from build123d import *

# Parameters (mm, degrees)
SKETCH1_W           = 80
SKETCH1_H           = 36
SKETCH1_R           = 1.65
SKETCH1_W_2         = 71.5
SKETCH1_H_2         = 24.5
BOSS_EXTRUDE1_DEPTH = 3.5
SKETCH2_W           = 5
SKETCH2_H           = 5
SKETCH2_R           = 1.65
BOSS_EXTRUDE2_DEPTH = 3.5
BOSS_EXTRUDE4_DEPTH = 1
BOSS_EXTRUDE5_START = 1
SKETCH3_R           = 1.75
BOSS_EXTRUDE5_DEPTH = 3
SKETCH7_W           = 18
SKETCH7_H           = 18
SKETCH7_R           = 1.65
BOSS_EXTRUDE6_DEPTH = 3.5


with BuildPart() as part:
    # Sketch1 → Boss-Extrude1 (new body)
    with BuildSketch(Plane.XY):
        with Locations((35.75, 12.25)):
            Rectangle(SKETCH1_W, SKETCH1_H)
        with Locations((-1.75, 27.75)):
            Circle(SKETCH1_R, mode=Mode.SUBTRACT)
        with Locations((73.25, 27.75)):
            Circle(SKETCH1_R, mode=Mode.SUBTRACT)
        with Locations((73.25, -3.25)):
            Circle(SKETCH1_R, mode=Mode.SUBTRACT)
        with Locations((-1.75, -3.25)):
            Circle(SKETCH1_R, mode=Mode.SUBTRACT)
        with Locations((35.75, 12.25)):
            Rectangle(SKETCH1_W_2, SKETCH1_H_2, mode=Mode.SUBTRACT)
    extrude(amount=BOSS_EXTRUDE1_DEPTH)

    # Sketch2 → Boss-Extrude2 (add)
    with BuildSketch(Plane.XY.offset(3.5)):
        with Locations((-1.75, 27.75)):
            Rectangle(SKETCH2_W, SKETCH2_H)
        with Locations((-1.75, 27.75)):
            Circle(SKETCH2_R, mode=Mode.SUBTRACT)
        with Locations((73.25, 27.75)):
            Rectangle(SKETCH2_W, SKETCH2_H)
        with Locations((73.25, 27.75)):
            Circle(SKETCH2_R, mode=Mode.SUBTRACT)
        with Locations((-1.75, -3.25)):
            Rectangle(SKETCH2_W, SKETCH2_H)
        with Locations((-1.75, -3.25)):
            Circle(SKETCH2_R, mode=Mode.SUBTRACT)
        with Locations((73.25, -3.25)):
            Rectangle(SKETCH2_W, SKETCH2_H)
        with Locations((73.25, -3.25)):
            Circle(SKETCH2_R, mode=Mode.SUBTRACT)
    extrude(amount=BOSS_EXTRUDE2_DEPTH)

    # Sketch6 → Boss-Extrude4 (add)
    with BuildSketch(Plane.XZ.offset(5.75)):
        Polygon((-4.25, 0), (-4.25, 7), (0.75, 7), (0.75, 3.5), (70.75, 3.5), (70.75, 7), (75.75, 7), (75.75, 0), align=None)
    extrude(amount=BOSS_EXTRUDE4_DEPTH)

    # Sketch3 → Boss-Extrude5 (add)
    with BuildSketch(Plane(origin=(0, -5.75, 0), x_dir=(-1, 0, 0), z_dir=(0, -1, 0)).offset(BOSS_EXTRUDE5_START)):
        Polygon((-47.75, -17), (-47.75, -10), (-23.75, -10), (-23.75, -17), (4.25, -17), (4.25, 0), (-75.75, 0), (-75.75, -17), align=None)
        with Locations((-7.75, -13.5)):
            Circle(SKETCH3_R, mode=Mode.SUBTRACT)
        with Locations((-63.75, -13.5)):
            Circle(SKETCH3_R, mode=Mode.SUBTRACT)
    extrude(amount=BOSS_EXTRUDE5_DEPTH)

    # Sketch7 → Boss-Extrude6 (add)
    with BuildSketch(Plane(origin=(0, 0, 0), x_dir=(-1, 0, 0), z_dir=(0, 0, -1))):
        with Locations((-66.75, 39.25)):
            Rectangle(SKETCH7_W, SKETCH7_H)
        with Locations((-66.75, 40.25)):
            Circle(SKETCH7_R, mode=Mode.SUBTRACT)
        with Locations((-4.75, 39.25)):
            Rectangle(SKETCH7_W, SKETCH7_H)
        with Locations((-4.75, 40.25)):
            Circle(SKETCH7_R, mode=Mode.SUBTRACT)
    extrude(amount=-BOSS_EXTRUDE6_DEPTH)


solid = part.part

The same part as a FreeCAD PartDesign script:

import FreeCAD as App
import Part
import Sketcher
Q = App.Units.Quantity

doc = App.newDocument("Part")
body = doc.addObject("PartDesign::Body", "Body")

# Sketch on XY plane
sketch1 = doc.addObject("Sketcher::SketchObject", "Sketch")
body.addObject(sketch1)
sketch1.AttachmentSupport = (doc.XY_Plane, [""])
sketch1.MapMode = "FlatFace"
sketch1.addGeometry(Part.LineSegment(App.Vector(-4.2, 30.2, 0), App.Vector(-4.2, -5.8, 0)), False)
sketch1.addGeometry(Part.LineSegment(App.Vector(-4.2, -5.8, 0), App.Vector(75.8, -5.8, 0)), False)
sketch1.addGeometry(Part.LineSegment(App.Vector(75.8, -5.8, 0), App.Vector(75.8, 30.2, 0)), False)
sketch1.addGeometry(Part.LineSegment(App.Vector(75.8, 30.2, 0), App.Vector(-4.2, 30.2, 0)), False)
sketch1.addGeometry(Part.Circle(App.Vector(-1.8, -3.2, 0), App.Vector(0, 0, 1), 1.6), False)
sketch1.addGeometry(Part.Circle(App.Vector(73.2, -3.2, 0), App.Vector(0, 0, 1), 1.6), False)
sketch1.addGeometry(Part.Circle(App.Vector(-1.8, 27.8, 0), App.Vector(0, 0, 1), 1.6), False)
sketch1.addGeometry(Part.LineSegment(App.Vector(71.5, 0, 0), App.Vector(0, 0, 0)), False)
sketch1.addGeometry(Part.LineSegment(App.Vector(0, 0, 0), App.Vector(0, 24.5, 0)), False)
sketch1.addGeometry(Part.LineSegment(App.Vector(0, 24.5, 0), App.Vector(71.5, 24.5, 0)), False)
sketch1.addGeometry(Part.LineSegment(App.Vector(71.5, 24.5, 0), App.Vector(71.5, 0, 0)), False)
sketch1.addGeometry(Part.Circle(App.Vector(73.2, 27.8, 0), App.Vector(0, 0, 1), 1.6), False)
sketch1.addConstraint(Sketcher.Constraint("Coincident", 0, 2, 1, 1))
sketch1.addConstraint(Sketcher.Constraint("Coincident", 1, 2, 2, 1))
sketch1.addConstraint(Sketcher.Constraint("Coincident", 2, 2, 3, 1))
sketch1.addConstraint(Sketcher.Constraint("Coincident", 3, 2, 0, 1))
sketch1.addConstraint(Sketcher.Constraint("Coincident", 7, 2, 8, 1))
sketch1.addConstraint(Sketcher.Constraint("Coincident", 8, 2, 9, 1))
sketch1.addConstraint(Sketcher.Constraint("Coincident", 9, 2, 10, 1))
sketch1.addConstraint(Sketcher.Constraint("Coincident", 10, 2, 7, 1))
sketch1.addConstraint(Sketcher.Constraint("Vertical", 0))
sketch1.addConstraint(Sketcher.Constraint("Horizontal", 1))
sketch1.addConstraint(Sketcher.Constraint("Vertical", 2))
sketch1.addConstraint(Sketcher.Constraint("Horizontal", 3))
sketch1.addConstraint(Sketcher.Constraint("Horizontal", 7))
sketch1.addConstraint(Sketcher.Constraint("Vertical", 8))
sketch1.addConstraint(Sketcher.Constraint("Horizontal", 9))
sketch1.addConstraint(Sketcher.Constraint("Vertical", 10))
sketch1.addConstraint(Sketcher.Constraint("Coincident", 7, 2, -1, 1))
sketch1.addConstraint(Sketcher.Constraint("Equal", 4, 5))
sketch1.addConstraint(Sketcher.Constraint("Equal", 5, 6))
sketch1.addConstraint(Sketcher.Constraint("Equal", 6, 11))
sketch1.addConstraint(Sketcher.Constraint("Horizontal", 4, 3, 5, 3))
sketch1.addConstraint(Sketcher.Constraint("Horizontal", 6, 3, 11, 3))
sketch1.addConstraint(Sketcher.Constraint("Vertical", 4, 3, 6, 3))
sketch1.addConstraint(Sketcher.Constraint("Vertical", 5, 3, 11, 3))
sketch1.addConstraint(Sketcher.Constraint("Diameter", 4, Q("3.3 mm")))
sketch1.addConstraint(Sketcher.Constraint("DistanceX", 1, 1, 1, 2, Q("80 mm")))
sketch1.addConstraint(Sketcher.Constraint("DistanceY", 0, 2, 0, 1, Q("36 mm")))
sketch1.addConstraint(Sketcher.Constraint("DistanceX", 7, 2, 7, 1, Q("71.5 mm")))
sketch1.addConstraint(Sketcher.Constraint("DistanceY", 8, 1, 8, 2, Q("24.5 mm")))
sketch1.addConstraint(Sketcher.Constraint("DistanceX", 4, 3, 5, 3, Q("75 mm")))
sketch1.addConstraint(Sketcher.Constraint("DistanceY", 4, 3, 6, 3, Q("31 mm")))
sketch1.addConstraint(Sketcher.Constraint("DistanceX", 0, 2, 4, 3, Q("2.5 mm")))
sketch1.addConstraint(Sketcher.Constraint("DistanceY", 0, 2, 4, 3, Q("2.5 mm")))
sketch1.addConstraint(Sketcher.Constraint("DistanceX", 4, 3, -1, 1, Q("1.75 mm")))
sketch1.addConstraint(Sketcher.Constraint("DistanceY", 4, 3, -1, 1, Q("3.25 mm")))
pad1 = doc.addObject("PartDesign::Pad", "Pad")
body.addObject(pad1)
pad1.Profile = sketch1
pad1.Length = 3.5

# Sketch on XY plane
sketch2 = doc.addObject("Sketcher::SketchObject", "Sketch001")
body.addObject(sketch2)
sketch2.AttachmentSupport = (doc.XY_Plane, [""])
sketch2.MapMode = "FlatFace"
sketch2.AttachmentOffset = App.Placement(App.Vector(0, 0, 3.5), App.Rotation())
sketch2.addGeometry(Part.LineSegment(App.Vector(-4.2, 30.2, 0), App.Vector(-4.2, 25.2, 0)), False)
sketch2.addGeometry(Part.LineSegment(App.Vector(-4.2, 25.2, 0), App.Vector(0.8, 25.2, 0)), False)
sketch2.addGeometry(Part.LineSegment(App.Vector(0.8, 25.2, 0), App.Vector(0.8, 30.2, 0)), False)
sketch2.addGeometry(Part.LineSegment(App.Vector(0.8, 30.2, 0), App.Vector(-4.2, 30.2, 0)), False)
sketch2.addGeometry(Part.Circle(App.Vector(-1.8, 27.8, 0), App.Vector(0, 0, 1), 1.6), False)
sketch2.addGeometry(Part.LineSegment(App.Vector(70.8, 30.2, 0), App.Vector(70.8, 25.2, 0)), False)
sketch2.addGeometry(Part.LineSegment(App.Vector(70.8, 25.2, 0), App.Vector(75.8, 25.2, 0)), False)
sketch2.addGeometry(Part.LineSegment(App.Vector(75.8, 25.2, 0), App.Vector(75.8, 30.2, 0)), False)
sketch2.addGeometry(Part.LineSegment(App.Vector(75.8, 30.2, 0), App.Vector(70.8, 30.2, 0)), False)
sketch2.addGeometry(Part.Circle(App.Vector(73.2, 27.8, 0), App.Vector(0, 0, 1), 1.6), False)
sketch2.addGeometry(Part.LineSegment(App.Vector(-4.2, -0.8, 0), App.Vector(-4.2, -5.8, 0)), False)
sketch2.addGeometry(Part.LineSegment(App.Vector(-4.2, -5.8, 0), App.Vector(0.8, -5.8, 0)), False)
sketch2.addGeometry(Part.LineSegment(App.Vector(0.8, -5.8, 0), App.Vector(0.8, -0.8, 0)), False)
sketch2.addGeometry(Part.LineSegment(App.Vector(0.8, -0.8, 0), App.Vector(-4.2, -0.8, 0)), False)
sketch2.addGeometry(Part.Circle(App.Vector(-1.8, -3.2, 0), App.Vector(0, 0, 1), 1.6), False)
sketch2.addGeometry(Part.LineSegment(App.Vector(70.8, -0.8, 0), App.Vector(70.8, -5.8, 0)), False)
sketch2.addGeometry(Part.LineSegment(App.Vector(70.8, -5.8, 0), App.Vector(75.8, -5.8, 0)), False)
sketch2.addGeometry(Part.LineSegment(App.Vector(75.8, -5.8, 0), App.Vector(75.8, -0.8, 0)), False)
sketch2.addGeometry(Part.LineSegment(App.Vector(75.8, -0.8, 0), App.Vector(70.8, -0.8, 0)), False)
sketch2.addGeometry(Part.Circle(App.Vector(73.2, -3.2, 0), App.Vector(0, 0, 1), 1.6), False)
sketch2.addConstraint(Sketcher.Constraint("Coincident", 0, 2, 1, 1))
sketch2.addConstraint(Sketcher.Constraint("Coincident", 1, 2, 2, 1))
sketch2.addConstraint(Sketcher.Constraint("Coincident", 2, 2, 3, 1))
sketch2.addConstraint(Sketcher.Constraint("Coincident", 3, 2, 0, 1))
sketch2.addConstraint(Sketcher.Constraint("Coincident", 5, 2, 6, 1))
sketch2.addConstraint(Sketcher.Constraint("Coincident", 6, 2, 7, 1))
sketch2.addConstraint(Sketcher.Constraint("Coincident", 7, 2, 8, 1))
sketch2.addConstraint(Sketcher.Constraint("Coincident", 8, 2, 5, 1))
sketch2.addConstraint(Sketcher.Constraint("Coincident", 10, 2, 11, 1))
sketch2.addConstraint(Sketcher.Constraint("Coincident", 11, 2, 12, 1))
sketch2.addConstraint(Sketcher.Constraint("Coincident", 12, 2, 13, 1))
sketch2.addConstraint(Sketcher.Constraint("Coincident", 13, 2, 10, 1))
sketch2.addConstraint(Sketcher.Constraint("Coincident", 15, 2, 16, 1))
sketch2.addConstraint(Sketcher.Constraint("Coincident", 16, 2, 17, 1))
sketch2.addConstraint(Sketcher.Constraint("Coincident", 17, 2, 18, 1))
sketch2.addConstraint(Sketcher.Constraint("Coincident", 18, 2, 15, 1))
sketch2.addConstraint(Sketcher.Constraint("Vertical", 0))
sketch2.addConstraint(Sketcher.Constraint("Horizontal", 1))
sketch2.addConstraint(Sketcher.Constraint("Vertical", 2))
sketch2.addConstraint(Sketcher.Constraint("Horizontal", 3))
sketch2.addConstraint(Sketcher.Constraint("Vertical", 5))
sketch2.addConstraint(Sketcher.Constraint("Horizontal", 6))
sketch2.addConstraint(Sketcher.Constraint("Vertical", 7))
sketch2.addConstraint(Sketcher.Constraint("Horizontal", 8))
sketch2.addConstraint(Sketcher.Constraint("Vertical", 10))
sketch2.addConstraint(Sketcher.Constraint("Horizontal", 11))
sketch2.addConstraint(Sketcher.Constraint("Vertical", 12))
sketch2.addConstraint(Sketcher.Constraint("Horizontal", 13))
sketch2.addConstraint(Sketcher.Constraint("Vertical", 15))
sketch2.addConstraint(Sketcher.Constraint("Horizontal", 16))
sketch2.addConstraint(Sketcher.Constraint("Vertical", 17))
sketch2.addConstraint(Sketcher.Constraint("Horizontal", 18))
sketch2.addConstraint(Sketcher.Constraint("Equal", 4, 9))
sketch2.addConstraint(Sketcher.Constraint("Equal", 9, 14))
sketch2.addConstraint(Sketcher.Constraint("Equal", 14, 19))
sketch2.addConstraint(Sketcher.Constraint("Horizontal", 4, 3, 9, 3))
sketch2.addConstraint(Sketcher.Constraint("Horizontal", 14, 3, 19, 3))
sketch2.addConstraint(Sketcher.Constraint("Horizontal", 1, 2, 5, 2))
sketch2.addConstraint(Sketcher.Constraint("Horizontal", 3, 2, 7, 2))
sketch2.addConstraint(Sketcher.Constraint("Horizontal", 11, 2, 15, 2))
sketch2.addConstraint(Sketcher.Constraint("Horizontal", 13, 2, 17, 2))
sketch2.addConstraint(Sketcher.Constraint("Vertical", 4, 3, 14, 3))
sketch2.addConstraint(Sketcher.Constraint("Vertical", 9, 3, 19, 3))
sketch2.addConstraint(Sketcher.Constraint("Vertical", 3, 2, 10, 2))
sketch2.addConstraint(Sketcher.Constraint("Vertical", 2, 2, 11, 2))
sketch2.addConstraint(Sketcher.Constraint("Vertical", 8, 2, 15, 2))
sketch2.addConstraint(Sketcher.Constraint("Vertical", 7, 2, 16, 2))
sketch2.addConstraint(Sketcher.Constraint("Equal", 3, 6))
sketch2.addConstraint(Sketcher.Constraint("Equal", 18, 0))
sketch2.addConstraint(Sketcher.Constraint("Equal", 7, 10))
sketch2.addConstraint(Sketcher.Constraint("Diameter", 4, Q("3.3 mm")))
sketch2.addConstraint(Sketcher.Constraint("DistanceX", 1, 1, 1, 2, Q("5 mm")))
sketch2.addConstraint(Sketcher.Constraint("DistanceX", 4, 3, 9, 3, Q("75 mm")))
sketch2.addConstraint(Sketcher.Constraint("DistanceY", 14, 3, 4, 3, Q("31 mm")))
sketch2.addConstraint(Sketcher.Constraint("DistanceX", 1, 2, 5, 2, Q("70 mm")))
sketch2.addConstraint(Sketcher.Constraint("DistanceY", 10, 2, 0, 2, Q("31 mm")))
sketch2.addConstraint(Sketcher.Constraint("DistanceX", 0, 2, 4, 3, Q("2.5 mm")))
sketch2.addConstraint(Sketcher.Constraint("DistanceY", 0, 2, 4, 3, Q("2.5 mm")))
sketch2.addConstraint(Sketcher.Constraint("DistanceX", 4, 3, -1, 1, Q("1.75 mm")))
sketch2.addConstraint(Sketcher.Constraint("DistanceY", -1, 1, 4, 3, Q("27.75 mm")))
pad2 = doc.addObject("PartDesign::Pad", "Pad001")
body.addObject(pad2)
pad2.Profile = sketch2
pad2.Length = 3.5

# Sketch on XZ plane
sketch3 = doc.addObject("Sketcher::SketchObject", "Sketch002")
body.addObject(sketch3)
sketch3.AttachmentSupport = (doc.XZ_Plane, [""])
sketch3.MapMode = "FlatFace"
sketch3.AttachmentOffset = App.Placement(App.Vector(0, 0, 5.75), App.Rotation())
sketch3.addGeometry(Part.LineSegment(App.Vector(-4.2, 7, 0), App.Vector(-4.2, 0, 0)), False)
sketch3.addGeometry(Part.LineSegment(App.Vector(-4.2, 0, 0), App.Vector(75.8, 0, 0)), False)
sketch3.addGeometry(Part.LineSegment(App.Vector(75.8, 0, 0), App.Vector(75.8, 7, 0)), False)
sketch3.addGeometry(Part.LineSegment(App.Vector(75.8, 7, 0), App.Vector(70.8, 7, 0)), False)
sketch3.addGeometry(Part.LineSegment(App.Vector(70.8, 7, 0), App.Vector(70.8, 3.5, 0)), False)
sketch3.addGeometry(Part.LineSegment(App.Vector(70.8, 3.5, 0), App.Vector(0.8, 3.5, 0)), False)
sketch3.addGeometry(Part.LineSegment(App.Vector(0.8, 3.5, 0), App.Vector(0.8, 7, 0)), False)
sketch3.addGeometry(Part.LineSegment(App.Vector(0.8, 7, 0), App.Vector(-4.2, 7, 0)), False)
sketch3.addConstraint(Sketcher.Constraint("Coincident", 0, 2, 1, 1))
sketch3.addConstraint(Sketcher.Constraint("Coincident", 1, 2, 2, 1))
sketch3.addConstraint(Sketcher.Constraint("Coincident", 2, 2, 3, 1))
sketch3.addConstraint(Sketcher.Constraint("Coincident", 3, 2, 4, 1))
sketch3.addConstraint(Sketcher.Constraint("Coincident", 4, 2, 5, 1))
sketch3.addConstraint(Sketcher.Constraint("Coincident", 5, 2, 6, 1))
sketch3.addConstraint(Sketcher.Constraint("Coincident", 6, 2, 7, 1))
sketch3.addConstraint(Sketcher.Constraint("Coincident", 7, 2, 0, 1))
sketch3.addConstraint(Sketcher.Constraint("Vertical", 0))
sketch3.addConstraint(Sketcher.Constraint("Horizontal", 1))
sketch3.addConstraint(Sketcher.Constraint("Vertical", 2))
sketch3.addConstraint(Sketcher.Constraint("Horizontal", 3))
sketch3.addConstraint(Sketcher.Constraint("Vertical", 4))
sketch3.addConstraint(Sketcher.Constraint("Horizontal", 5))
sketch3.addConstraint(Sketcher.Constraint("Vertical", 6))
sketch3.addConstraint(Sketcher.Constraint("Horizontal", 7))
sketch3.addConstraint(Sketcher.Constraint("PointOnObject", 0, 2, -1))
sketch3.addConstraint(Sketcher.Constraint("Horizontal", 3, 2, 6, 2))
sketch3.addConstraint(Sketcher.Constraint("Equal", 3, 7))
sketch3.addConstraint(Sketcher.Constraint("DistanceX", 1, 1, 1, 2, Q("80 mm")))
sketch3.addConstraint(Sketcher.Constraint("DistanceX", 3, 2, 3, 1, Q("5 mm")))
sketch3.addConstraint(Sketcher.Constraint("DistanceY", 0, 2, 0, 1, Q("7 mm")))
sketch3.addConstraint(Sketcher.Constraint("DistanceY", 4, 2, 4, 1, Q("3.5 mm")))
sketch3.addConstraint(Sketcher.Constraint("DistanceX", 0, 2, -1, 1, Q("4.25 mm")))
pad3 = doc.addObject("PartDesign::Pad", "Pad002")
body.addObject(pad3)
pad3.Profile = sketch3
pad3.Length = 1

# Sketch on XZ plane
sketch4 = doc.addObject("Sketcher::SketchObject", "Sketch003")
body.addObject(sketch4)
sketch4.AttachmentSupport = (doc.XZ_Plane, [""])
sketch4.MapMode = "FlatFace"
sketch4.AttachmentOffset = App.Placement(App.Vector(0, 0, 6.75), App.Rotation())
sketch4.addGeometry(Part.LineSegment(App.Vector(47.8, 17, 0), App.Vector(47.8, 10, 0)), False)
sketch4.addGeometry(Part.LineSegment(App.Vector(47.8, 10, 0), App.Vector(23.8, 10, 0)), False)
sketch4.addGeometry(Part.LineSegment(App.Vector(23.8, 10, 0), App.Vector(23.8, 17, 0)), False)
sketch4.addGeometry(Part.LineSegment(App.Vector(23.8, 17, 0), App.Vector(-4.2, 17, 0)), False)
sketch4.addGeometry(Part.LineSegment(App.Vector(-4.2, 17, 0), App.Vector(-4.2, 0, 0)), False)
sketch4.addGeometry(Part.LineSegment(App.Vector(-4.2, 0, 0), App.Vector(75.8, 0, 0)), False)
sketch4.addGeometry(Part.LineSegment(App.Vector(75.8, 0, 0), App.Vector(75.8, 17, 0)), False)
sketch4.addGeometry(Part.LineSegment(App.Vector(75.8, 17, 0), App.Vector(47.8, 17, 0)), False)
sketch4.addGeometry(Part.Circle(App.Vector(63.8, 13.5, 0), App.Vector(0, 0, 1), 1.8), False)
sketch4.addGeometry(Part.Circle(App.Vector(7.8, 13.5, 0), App.Vector(0, 0, 1), 1.8), False)
sketch4.addConstraint(Sketcher.Constraint("Coincident", 0, 2, 1, 1))
sketch4.addConstraint(Sketcher.Constraint("Coincident", 1, 2, 2, 1))
sketch4.addConstraint(Sketcher.Constraint("Coincident", 2, 2, 3, 1))
sketch4.addConstraint(Sketcher.Constraint("Coincident", 3, 2, 4, 1))
sketch4.addConstraint(Sketcher.Constraint("Coincident", 4, 2, 5, 1))
sketch4.addConstraint(Sketcher.Constraint("Coincident", 5, 2, 6, 1))
sketch4.addConstraint(Sketcher.Constraint("Coincident", 6, 2, 7, 1))
sketch4.addConstraint(Sketcher.Constraint("Coincident", 7, 2, 0, 1))
sketch4.addConstraint(Sketcher.Constraint("Vertical", 0))
sketch4.addConstraint(Sketcher.Constraint("Horizontal", 1))
sketch4.addConstraint(Sketcher.Constraint("Vertical", 2))
sketch4.addConstraint(Sketcher.Constraint("Horizontal", 3))
sketch4.addConstraint(Sketcher.Constraint("Vertical", 4))
sketch4.addConstraint(Sketcher.Constraint("Horizontal", 5))
sketch4.addConstraint(Sketcher.Constraint("Vertical", 6))
sketch4.addConstraint(Sketcher.Constraint("Horizontal", 7))
sketch4.addConstraint(Sketcher.Constraint("Equal", 8, 9))
sketch4.addConstraint(Sketcher.Constraint("PointOnObject", 4, 2, -1))
sketch4.addConstraint(Sketcher.Constraint("Horizontal", 8, 3, 9, 3))
sketch4.addConstraint(Sketcher.Constraint("Horizontal", 3, 2, 6, 2))
sketch4.addConstraint(Sketcher.Constraint("Equal", 3, 7))
sketch4.addConstraint(Sketcher.Constraint("Diameter", 8, Q("3.5 mm")))
sketch4.addConstraint(Sketcher.Constraint("DistanceX", 1, 2, 1, 1, Q("24 mm")))
sketch4.addConstraint(Sketcher.Constraint("DistanceX", 3, 2, 3, 1, Q("28 mm")))
sketch4.addConstraint(Sketcher.Constraint("DistanceY", 0, 2, 0, 1, Q("7 mm")))
sketch4.addConstraint(Sketcher.Constraint("DistanceY", 4, 2, 4, 1, Q("17 mm")))
sketch4.addConstraint(Sketcher.Constraint("DistanceX", 9, 3, 8, 3, Q("56 mm")))
sketch4.addConstraint(Sketcher.Constraint("DistanceX", 0, 2, 8, 3, Q("16 mm")))
sketch4.addConstraint(Sketcher.Constraint("DistanceY", -1, 1, 8, 3, Q("13.5 mm")))
sketch4.addConstraint(Sketcher.Constraint("DistanceX", -1, 1, 8, 3, Q("63.75 mm")))
pad4 = doc.addObject("PartDesign::Pad", "Pad003")
body.addObject(pad4)
pad4.Profile = sketch4
pad4.Length = 3

# Sketch on XY plane
sketch5 = doc.addObject("Sketcher::SketchObject", "Sketch004")
body.addObject(sketch5)
sketch5.AttachmentSupport = (doc.XY_Plane, [""])
sketch5.MapMode = "FlatFace"
sketch5.addGeometry(Part.LineSegment(App.Vector(75.8, 48.2, 0), App.Vector(75.8, 30.2, 0)), False)
sketch5.addGeometry(Part.LineSegment(App.Vector(75.8, 30.2, 0), App.Vector(57.8, 30.2, 0)), False)
sketch5.addGeometry(Part.LineSegment(App.Vector(57.8, 30.2, 0), App.Vector(57.8, 48.2, 0)), False)
sketch5.addGeometry(Part.LineSegment(App.Vector(57.8, 48.2, 0), App.Vector(75.8, 48.2, 0)), False)
sketch5.addGeometry(Part.Circle(App.Vector(66.8, 40.2, 0), App.Vector(0, 0, 1), 1.6), False)
sketch5.addGeometry(Part.LineSegment(App.Vector(13.8, 48.2, 0), App.Vector(13.8, 30.2, 0)), False)
sketch5.addGeometry(Part.LineSegment(App.Vector(13.8, 30.2, 0), App.Vector(-4.2, 30.2, 0)), False)
sketch5.addGeometry(Part.LineSegment(App.Vector(-4.2, 30.2, 0), App.Vector(-4.2, 48.2, 0)), False)
sketch5.addGeometry(Part.LineSegment(App.Vector(-4.2, 48.2, 0), App.Vector(13.8, 48.2, 0)), False)
sketch5.addGeometry(Part.Circle(App.Vector(4.8, 40.2, 0), App.Vector(0, 0, 1), 1.6), False)
sketch5.addConstraint(Sketcher.Constraint("Coincident", 0, 2, 1, 1))
sketch5.addConstraint(Sketcher.Constraint("Coincident", 1, 2, 2, 1))
sketch5.addConstraint(Sketcher.Constraint("Coincident", 2, 2, 3, 1))
sketch5.addConstraint(Sketcher.Constraint("Coincident", 3, 2, 0, 1))
sketch5.addConstraint(Sketcher.Constraint("Coincident", 5, 2, 6, 1))
sketch5.addConstraint(Sketcher.Constraint("Coincident", 6, 2, 7, 1))
sketch5.addConstraint(Sketcher.Constraint("Coincident", 7, 2, 8, 1))
sketch5.addConstraint(Sketcher.Constraint("Coincident", 8, 2, 5, 1))
sketch5.addConstraint(Sketcher.Constraint("Vertical", 0))
sketch5.addConstraint(Sketcher.Constraint("Horizontal", 1))
sketch5.addConstraint(Sketcher.Constraint("Vertical", 2))
sketch5.addConstraint(Sketcher.Constraint("Horizontal", 3))
sketch5.addConstraint(Sketcher.Constraint("Vertical", 5))
sketch5.addConstraint(Sketcher.Constraint("Horizontal", 6))
sketch5.addConstraint(Sketcher.Constraint("Vertical", 7))
sketch5.addConstraint(Sketcher.Constraint("Horizontal", 8))
sketch5.addConstraint(Sketcher.Constraint("Equal", 4, 9))
sketch5.addConstraint(Sketcher.Constraint("Horizontal", 4, 3, 9, 3))
sketch5.addConstraint(Sketcher.Constraint("Horizontal", 1, 2, 5, 2))
sketch5.addConstraint(Sketcher.Constraint("Horizontal", 3, 2, 7, 2))
sketch5.addConstraint(Sketcher.Constraint("Equal", 3, 6))
sketch5.addConstraint(Sketcher.Constraint("Equal", 8, 0))
sketch5.addConstraint(Sketcher.Constraint("Diameter", 4, Q("3.3 mm")))
sketch5.addConstraint(Sketcher.Constraint("DistanceX", 1, 2, 1, 1, Q("18 mm")))
sketch5.addConstraint(Sketcher.Constraint("DistanceX", 9, 3, 4, 3, Q("62 mm")))
sketch5.addConstraint(Sketcher.Constraint("DistanceX", 4, 3, 0, 2, Q("9 mm")))
sketch5.addConstraint(Sketcher.Constraint("DistanceY", 0, 2, 4, 3, Q("10 mm")))
sketch5.addConstraint(Sketcher.Constraint("DistanceX", 9, 3, 5, 2, Q("9 mm")))
sketch5.addConstraint(Sketcher.Constraint("DistanceX", -1, 1, 4, 3, Q("66.75 mm")))
sketch5.addConstraint(Sketcher.Constraint("DistanceY", -1, 1, 4, 3, Q("40.25 mm")))
pad5 = doc.addObject("PartDesign::Pad", "Pad004")
body.addObject(pad5)
pad5.Profile = sketch5
pad5.Length = 3.5

doc.recompute()
